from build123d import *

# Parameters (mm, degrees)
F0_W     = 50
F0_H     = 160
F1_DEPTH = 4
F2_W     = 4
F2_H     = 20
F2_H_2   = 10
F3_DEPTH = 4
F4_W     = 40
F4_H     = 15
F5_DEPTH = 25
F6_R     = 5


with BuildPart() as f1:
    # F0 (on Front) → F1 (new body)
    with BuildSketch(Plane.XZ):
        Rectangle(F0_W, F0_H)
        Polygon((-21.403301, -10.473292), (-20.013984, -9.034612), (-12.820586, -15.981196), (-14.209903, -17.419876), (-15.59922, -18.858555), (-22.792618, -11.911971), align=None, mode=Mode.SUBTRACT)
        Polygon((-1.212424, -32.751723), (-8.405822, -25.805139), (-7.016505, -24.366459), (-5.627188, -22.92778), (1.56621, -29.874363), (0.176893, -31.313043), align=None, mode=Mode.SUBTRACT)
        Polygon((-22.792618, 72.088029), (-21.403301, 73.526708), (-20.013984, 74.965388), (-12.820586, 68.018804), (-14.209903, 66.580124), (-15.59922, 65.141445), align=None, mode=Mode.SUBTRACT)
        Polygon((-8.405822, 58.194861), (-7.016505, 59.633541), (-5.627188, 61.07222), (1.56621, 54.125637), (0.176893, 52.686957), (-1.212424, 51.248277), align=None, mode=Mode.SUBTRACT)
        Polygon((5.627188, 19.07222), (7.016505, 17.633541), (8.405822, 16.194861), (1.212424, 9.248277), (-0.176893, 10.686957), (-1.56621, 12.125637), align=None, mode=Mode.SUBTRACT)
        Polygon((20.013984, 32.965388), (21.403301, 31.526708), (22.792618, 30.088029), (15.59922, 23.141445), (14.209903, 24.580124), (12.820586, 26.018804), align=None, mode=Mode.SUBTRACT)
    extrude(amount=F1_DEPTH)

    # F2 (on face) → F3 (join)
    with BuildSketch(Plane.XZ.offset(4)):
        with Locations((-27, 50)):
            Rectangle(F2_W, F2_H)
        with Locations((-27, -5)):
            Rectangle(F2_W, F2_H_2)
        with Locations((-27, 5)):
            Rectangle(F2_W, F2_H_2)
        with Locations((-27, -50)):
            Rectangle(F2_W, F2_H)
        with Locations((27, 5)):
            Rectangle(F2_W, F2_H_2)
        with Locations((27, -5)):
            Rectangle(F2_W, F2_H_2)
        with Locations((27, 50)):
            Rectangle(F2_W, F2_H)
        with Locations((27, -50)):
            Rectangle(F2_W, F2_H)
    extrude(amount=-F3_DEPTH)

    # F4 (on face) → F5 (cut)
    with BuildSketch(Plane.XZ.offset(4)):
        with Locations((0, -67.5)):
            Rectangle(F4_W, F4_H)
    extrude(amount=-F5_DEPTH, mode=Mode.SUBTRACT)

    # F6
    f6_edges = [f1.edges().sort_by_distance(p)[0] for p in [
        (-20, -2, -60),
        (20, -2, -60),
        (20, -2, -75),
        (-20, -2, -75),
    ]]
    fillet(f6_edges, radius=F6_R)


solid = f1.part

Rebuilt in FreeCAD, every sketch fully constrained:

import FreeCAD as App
import Part
import Sketcher
Q = App.Units.Quantity


def edges_at(feature, points):
    """Names of the edges that pass closest to the given points."""
    edges = feature.Shape.Edges
    near = lambda p: min(range(len(edges)), key=lambda i: edges[i].distToShape(Part.Vertex(*p))[0])
    return sorted({f"Edge{near(p) + 1}" for p in points})

doc = App.newDocument("Part")
body = doc.addObject("PartDesign::Body", "Body")

sketch1 = body.newObject("Sketcher::SketchObject", "Sketch")
sketch1.AttachmentSupport = (doc.getObject("XZ_Plane"), [""])
sketch1.MapMode = "FlatFace"
sketch1.addGeometry([
    Part.LineSegment(App.Vector(-25, 80, 0), App.Vector(-25, -80, 0)),
    Part.LineSegment(App.Vector(-25, -80, 0), App.Vector(25, -80, 0)),
    Part.LineSegment(App.Vector(25, -80, 0), App.Vector(25, 80, 0)),
    Part.LineSegment(App.Vector(25, 80, 0), App.Vector(-25, 80, 0)),
    Part.LineSegment(App.Vector(-22.792618, -11.911971, 0), App.Vector(-21.403301, -10.473292, 0)),
    Part.LineSegment(App.Vector(-21.403301, -10.473292, 0), App.Vector(-20.013984, -9.034612, 0)),
    Part.LineSegment(App.Vector(-20.013984, -9.034612, 0), App.Vector(-12.820586, -15.981196, 0)),
    Part.LineSegment(App.Vector(-12.820586, -15.981196, 0), App.Vector(-14.209903, -17.419876, 0)),
    Part.LineSegment(App.Vector(-14.209903, -17.419876, 0), App.Vector(-15.59922, -18.858555, 0)),
    Part.LineSegment(App.Vector(-15.59922, -18.858555, 0), App.Vector(-22.792618, -11.911971, 0)),
    Part.LineSegment(App.Vector(1.56621, -29.874363, 0), App.Vector(-1.212424, -32.751723, 0)),
    Part.LineSegment(App.Vector(-1.212424, -32.751723, 0), App.Vector(-8.405822, -25.805139, 0)),
    Part.LineSegment(App.Vector(-8.405822, -25.805139, 0), App.Vector(-7.016505, -24.366459, 0)),
    Part.LineSegment(App.Vector(-7.016505, -24.366459, 0), App.Vector(-5.627188, -22.92778, 0)),
    Part.LineSegment(App.Vector(-5.627188, -22.92778, 0), App.Vector(1.56621, -29.874363, 0)),
    Part.LineSegment(App.Vector(-1.56621, 12.125637, 0), App.Vector(5.627188, 19.07222, 0)),
    Part.LineSegment(App.Vector(5.627188, 19.07222, 0), App.Vector(7.016505, 17.633541, 0)),
    Part.LineSegment(App.Vector(7.016505, 17.633541, 0), App.Vector(8.405822, 16.194861, 0)),
    Part.LineSegment(App.Vector(8.405822, 16.194861, 0), App.Vector(1.212424, 9.248277, 0)),
    Part.LineSegment(App.Vector(1.212424, 9.248277, 0), App.Vector(-1.56621, 12.125637, 0)),
    Part.LineSegment(App.Vector(-15.59922, 65.141445, 0), App.Vector(-22.792618, 72.088029, 0)),
    Part.LineSegment(App.Vector(-22.792618, 72.088029, 0), App.Vector(-21.403301, 73.526708, 0)),
    Part.LineSegment(App.Vector(-21.403301, 73.526708, 0), App.Vector(-20.013984, 74.965388, 0)),
    Part.LineSegment(App.Vector(-20.013984, 74.965388, 0), App.Vector(-12.820586, 68.018804, 0)),
    Part.LineSegment(App.Vector(-12.820586, 68.018804, 0), App.Vector(-14.209903, 66.580124, 0)),
    Part.LineSegment(App.Vector(-14.209903, 66.580124, 0), App.Vector(-15.59922, 65.141445, 0)),
    Part.LineSegment(App.Vector(-1.212424, 51.248277, 0), App.Vector(-8.405822, 58.194861, 0)),
    Part.LineSegment(App.Vector(-8.405822, 58.194861, 0), App.Vector(-7.016505, 59.633541, 0)),
    Part.LineSegment(App.Vector(-7.016505, 59.633541, 0), App.Vector(-5.627188, 61.07222, 0)),
    Part.LineSegment(App.Vector(-5.627188, 61.07222, 0), App.Vector(1.56621, 54.125637, 0)),
    Part.LineSegment(App.Vector(1.56621, 54.125637, 0), App.Vector(-1.212424, 51.248277, 0)),
    Part.LineSegment(App.Vector(12.820586, 26.018804, 0), App.Vector(20.013984, 32.965388, 0)),
    Part.LineSegment(App.Vector(20.013984, 32.965388, 0), App.Vector(21.403301, 31.526708, 0)),
    Part.LineSegment(App.Vector(21.403301, 31.526708, 0), App.Vector(22.792618, 30.088029, 0)),
    Part.LineSegment(App.Vector(22.792618, 30.088029, 0), App.Vector(15.59922, 23.141445, 0)),
    Part.LineSegment(App.Vector(15.59922, 23.141445, 0), App.Vector(14.209903, 24.580124, 0)),
    Part.LineSegment(App.Vector(14.209903, 24.580124, 0), App.Vector(12.820586, 26.018804, 0)),
], False)
sketch1.addConstraint([
    Sketcher.Constraint("Coincident", 0, 2, 1, 1),
    Sketcher.Constraint("Coincident", 1, 2, 2, 1),
    Sketcher.Constraint("Coincident", 2, 2, 3, 1),
    Sketcher.Constraint("Coincident", 3, 2, 0, 1),
    Sketcher.Constraint("Coincident", 4, 2, 5, 1),
    Sketcher.Constraint("Coincident", 5, 2, 6, 1),
    Sketcher.Constraint("Coincident", 6, 2, 7, 1),
    Sketcher.Constraint("Coincident", 7, 2, 8, 1),
    Sketcher.Constraint("Coincident", 8, 2, 9, 1),
    Sketcher.Constraint("Coincident", 9, 2, 4, 1),
    Sketcher.Constraint("Coincident", 10, 2, 11, 1),
    Sketcher.Constraint("Coincident", 11, 2, 12, 1),
    Sketcher.Constraint("Coincident", 12, 2, 13, 1),
    Sketcher.Constraint("Coincident", 13, 2, 14, 1),
    Sketcher.Constraint("Coincident", 14, 2, 10, 1),
    Sketcher.Constraint("Coincident", 15, 2, 16, 1),
    Sketcher.Constraint("Coincident", 16, 2, 17, 1),
    Sketcher.Constraint("Coincident", 17, 2, 18, 1),
    Sketcher.Constraint("Coincident", 18, 2, 19, 1),
    Sketcher.Constraint("Coincident", 19, 2, 15, 1),
    Sketcher.Constraint("Coincident", 20, 2, 21, 1),
    Sketcher.Constraint("Coincident", 21, 2, 22, 1),
    Sketcher.Constraint("Coincident", 22, 2, 23, 1),
    Sketcher.Constraint("Coincident", 23, 2, 24, 1),
    Sketcher.Constraint("Coincident", 24, 2, 25, 1),
    Sketcher.Constraint("Coincident", 25, 2, 20, 1),
    Sketcher.Constraint("Coincident", 26, 2, 27, 1),
    Sketcher.Constraint("Coincident", 27, 2, 28, 1),
    Sketcher.Constraint("Coincident", 28, 2, 29, 1),
    Sketcher.Constraint("Coincident", 29, 2, 30, 1),
    Sketcher.Constraint("Coincident", 30, 2, 26, 1),
    Sketcher.Constraint("Coincident", 31, 2, 32, 1),
    Sketcher.Constraint("Coincident", 32, 2, 33, 1),
    Sketcher.Constraint("Coincident", 33, 2, 34, 1),
    Sketcher.Constraint("Coincident", 34, 2, 35, 1),
    Sketcher.Constraint("Coincident", 35, 2, 36, 1),
    Sketcher.Constraint("Coincident", 36, 2, 31, 1),
    Sketcher.Constraint("Vertical", 0),
    Sketcher.Constraint("Horizontal", 1),
    Sketcher.Constraint("Vertical", 2),
    Sketcher.Constraint("Horizontal", 3),
    Sketcher.Constraint("Symmetric", 0, 2, 2, 2, -1, 1),
    Sketcher.Constraint("Parallel", 4, 5),
    Sketcher.Constraint("Perpendicular", 5, 6),
    Sketcher.Constraint("Perpendicular", 6, 7),
    Sketcher.Constraint("Parallel", 7, 8),
    Sketcher.Constraint("Perpendicular", 8, 9),
    Sketcher.Constraint("Perpendicular", 9, 10),
    Sketcher.Constraint("Perpendicular", 10, 11),
    Sketcher.Constraint("Perpendicular", 11, 12),
    Sketcher.Constraint("Parallel", 12, 13),
    Sketcher.Constraint("Perpendicular", 13, 14),
    Sketcher.Constraint("Perpendicular", 15, 16),
    Sketcher.Constraint("Parallel", 16, 17),
    Sketcher.Constraint("Perpendicular", 17, 18),
    Sketcher.Constraint("Perpendicular", 18, 19),
    Sketcher.Constraint("Parallel", 14, 20),
    Sketcher.Constraint("Perpendicular", 20, 21),
    Sketcher.Constraint("Parallel", 21, 22),
    Sketcher.Constraint("Perpendicular", 22, 23),
    Sketcher.Constraint("Perpendicular", 23, 24),
    Sketcher.Constraint("Parallel", 24, 25),
    Sketcher.Constraint("Perpendicular", 25, 26),
    Sketcher.Constraint("Perpendicular", 26, 27),
    Sketcher.Constraint("Parallel", 27, 28),
    Sketcher.Constraint("Perpendicular", 28, 29),
    Sketcher.Constraint("Perpendicular", 29, 30),
    Sketcher.Constraint("Perpendicular", 19, 31),
    Sketcher.Constraint("Perpendicular", 31, 32),
    Sketcher.Constraint("Parallel", 32, 33),
    Sketcher.Constraint("Perpendicular", 33, 34),
    Sketcher.Constraint("Perpendicular", 34, 35),
    Sketcher.Constraint("Parallel", 35, 36),
    Sketcher.Constraint("Vertical", 9, 2, 20, 2),
    Sketcher.Constraint("Vertical", 4, 2, 21, 2),
    Sketcher.Constraint("Vertical", 5, 2, 22, 2),
    Sketcher.Constraint("Vertical", 6, 2, 23, 2),
    Sketcher.Constraint("Vertical", 7, 2, 24, 2),
    Sketcher.Constraint("Vertical", 11, 2, 26, 2),
    Sketcher.Constraint("Vertical", 12, 2, 27, 2),
    Sketcher.Constraint("Vertical", 13, 2, 28, 2),
    Sketcher.Constraint("Vertical", 14, 2, 29, 2),
    Sketcher.Constraint("Equal", 4, 5),
    Sketcher.Constraint("Equal", 5, 7),
    Sketcher.Constraint("Equal", 9, 11),
    Sketcher.Constraint("Equal", 8, 12),
    Sketcher.Constraint("Equal", 12, 13),
    Sketcher.Constraint("Equal", 14, 15),
    Sketcher.Constraint("Equal", 13, 16),
    Sketcher.Constraint("Equal", 16, 17),
    Sketcher.Constraint("Equal", 29, 31),
    Sketcher.Constraint("Equal", 28, 32),
    Sketcher.Constraint("Equal", 32, 33),
    Sketcher.Constraint("Equal", 33, 35),
    Sketcher.Constraint("DistanceX", 1, 1, 1, 2, 50.0),
    Sketcher.Constraint("DistanceY", 0, 2, 0, 1, 160.0),
    Sketcher.Constraint("Angle", 4, Q("45.999983 deg")),
    Sketcher.Constraint("Angle", 15, Q("43.999997 deg")),
    Sketcher.Constraint("Distance", 4, 2.0),
    Sketcher.Constraint("Distance", 6, 10.0),
    Sketcher.Constraint("DistanceX", 4, 2, -1, 1, 21.403301),
    Sketcher.Constraint("DistanceX", -1, 1, 32, 2, 21.403301),
    Sketcher.Constraint("DistanceX", 8, 2, 11, 2, 7.193398),
    Sketcher.Constraint("DistanceX", 17, 2, 34, 2, 7.193398),
    Sketcher.Constraint("DistanceY", 5, 2, -1, 1, 9.034612),
    Sketcher.Constraint("DistanceY", 11, 2, -1, 1, 25.805139),
    Sketcher.Constraint("DistanceY", -1, 1, 15, 2, 19.07222),
    Sketcher.Constraint("DistanceY", -1, 1, 20, 2, 72.088029),
    Sketcher.Constraint("DistanceY", -1, 1, 26, 2, 58.194861),
    Sketcher.Constraint("DistanceY", -1, 1, 33, 2, 30.088029),
])
pad1 = body.newObject("PartDesign::Pad", "Pad")
pad1.Profile = sketch1
pad1.Length = 4

sketch2 = body.newObject("Sketcher::SketchObject", "Sketch001")
sketch2.AttachmentSupport = (doc.getObject("XZ_Plane"), [""])
sketch2.MapMode = "FlatFace"
sketch2.AttachmentOffset = App.Placement(App.Vector(0, 0, 4), App.Rotation())
sketch2.addGeometry([
    Part.LineSegment(App.Vector(-29, 60, 0), App.Vector(-29, 40, 0)),
    Part.LineSegment(App.Vector(-29, 40, 0), App.Vector(-25, 40, 0)),
    Part.LineSegment(App.Vector(-25, 40, 0), App.Vector(-25, 60, 0)),
    Part.LineSegment(App.Vector(-25, 60, 0), App.Vector(-29, 60, 0)),
    Part.LineSegment(App.Vector(-29, -10, 0), App.Vector(-25, -10, 0)),
    Part.LineSegment(App.Vector(-25, -10, 0), App.Vector(-25, 10, 0)),
    Part.LineSegment(App.Vector(-25, 10, 0), App.Vector(-29, 10, 0)),
    Part.LineSegment(App.Vector(-29, 10, 0), App.Vector(-29, -10, 0)),
    Part.LineSegment(App.Vector(-29, -40, 0), App.Vector(-29, -60, 0)),
    Part.LineSegment(App.Vector(-29, -60, 0), App.Vector(-25, -60, 0)),
    Part.LineSegment(App.Vector(-25, -60, 0), App.Vector(-25, -40, 0)),
    Part.LineSegment(App.Vector(-25, -40, 0), App.Vector(-29, -40, 0)),
    Part.LineSegment(App.Vector(25, 10, 0), App.Vector(25, -10, 0)),
    Part.LineSegment(App.Vector(25, -10, 0), App.Vector(29, -10, 0)),
    Part.LineSegment(App.Vector(29, -10, 0), App.Vector(29, 10, 0)),
    Part.LineSegment(App.Vector(29, 10, 0), App.Vector(25, 10, 0)),
    Part.LineSegment(App.Vector(25, 60, 0), App.Vector(25, 40, 0)),
    Part.LineSegment(App.Vector(25, 40, 0), App.Vector(29, 40, 0)),
    Part.LineSegment(App.Vector(29, 40, 0), App.Vector(29, 60, 0)),
    Part.LineSegment(App.Vector(29, 60, 0), App.Vector(25, 60, 0)),
    Part.LineSegment(App.Vector(25, -40, 0), App.Vector(25, -60, 0)),
    Part.LineSegment(App.Vector(25, -60, 0), App.Vector(29, -60, 0)),
    Part.LineSegment(App.Vector(29, -60, 0), App.Vector(29, -40, 0)),
    Part.LineSegment(App.Vector(29, -40, 0), App.Vector(25, -40, 0)),
], False)
sketch2.addConstraint([
    Sketcher.Constraint("Coincident", 0, 2, 1, 1),
    Sketcher.Constraint("Coincident", 1, 2, 2, 1),
    Sketcher.Constraint("Coincident", 2, 2, 3, 1),
    Sketcher.Constraint("Coincident", 3, 2, 0, 1),
    Sketcher.Constraint("Coincident", 4, 2, 5, 1),
    Sketcher.Constraint("Coincident", 5, 2, 6, 1),
    Sketcher.Constraint("Coincident", 6, 2, 7, 1),
    Sketcher.Constraint("Coincident", 7, 2, 4, 1),
    Sketcher.Constraint("Coincident", 8, 2, 9, 1),
    Sketcher.Constraint("Coincident", 9, 2, 10, 1),
    Sketcher.Constraint("Coincident", 10, 2, 11, 1),
    Sketcher.Constraint("Coincident", 11, 2, 8, 1),
    Sketcher.Constraint("Coincident", 12, 2, 13, 1),
    Sketcher.Constraint("Coincident", 13, 2, 14, 1),
    Sketcher.Constraint("Coincident", 14, 2, 15, 1),
    Sketcher.Constraint("Coincident", 15, 2, 12, 1),
    Sketcher.Constraint("Coincident", 16, 2, 17, 1),
    Sketcher.Constraint("Coincident", 17, 2, 18, 1),
    Sketcher.Constraint("Coincident", 18, 2, 19, 1),
    Sketcher.Constraint("Coincident", 19, 2, 16, 1),
    Sketcher.Constraint("Coincident", 20, 2, 21, 1),
    Sketcher.Constraint("Coincident", 21, 2, 22, 1),
    Sketcher.Constraint("Coincident", 22, 2, 23, 1),
    Sketcher.Constraint("Coincident", 23, 2, 20, 1),
    Sketcher.Constraint("Vertical", 0),
    Sketcher.Constraint("Horizontal", 1),
    Sketcher.Constraint("Vertical", 2),
    Sketcher.Constraint("Horizontal", 3),
    Sketcher.Constraint("Horizontal", 4),
    Sketcher.Constraint("Vertical", 5),
    Sketcher.Constraint("Horizontal", 6),
    Sketcher.Constraint("Vertical", 7),
    Sketcher.Constraint("Vertical", 8),
    Sketcher.Constraint("Horizontal", 9),
    Sketcher.Constraint("Vertical", 10),
    Sketcher.Constraint("Horizontal", 11),
    Sketcher.Constraint("Vertical", 12),
    Sketcher.Constraint("Horizontal", 13),
    Sketcher.Constraint("Vertical", 14),
    Sketcher.Constraint("Horizontal", 15),
    Sketcher.Constraint("Vertical", 16),
    Sketcher.Constraint("Horizontal", 17),
    Sketcher.Constraint("Vertical", 18),
    Sketcher.Constraint("Horizontal", 19),
    Sketcher.Constraint("Vertical", 20),
    Sketcher.Constraint("Horizontal", 21),
    Sketcher.Constraint("Vertical", 22),
    Sketcher.Constraint("Horizontal", 23),
    Sketcher.Constraint("Symmetric", 5, 2, 12, 2, -1, 1),
    Sketcher.Constraint("Symmetric", 7, 2, 14, 2, -1, 1),
    Sketcher.Constraint("Symmetric", 10, 2, 16, 2, -1, 1),
    Sketcher.Constraint("Symmetric", 8, 2, 18, 2, -1, 1),
    Sketcher.Constraint("Symmetric", 2, 2, 20, 2, -1, 1),
    Sketcher.Constraint("Symmetric", 0, 2, 22, 2, -1, 1),
    Sketcher.Constraint("Symmetric", 1, 2, 16, 2, -2),
    Sketcher.Constraint("Symmetric", 3, 2, 18, 2, -2),
    Sketcher.Constraint("Horizontal", 7, 2, 12, 2),
    Sketcher.Constraint("Vertical", 2, 2, 4, 2),
    Sketcher.Constraint("Vertical", 3, 2, 6, 2),
    Sketcher.Constraint("Equal", 2, 5),
    Sketcher.Constraint("DistanceX", 1, 1, 1, 2, 4.0),
    Sketcher.Constraint("DistanceY", 0, 2, 0, 1, 20.0),
    Sketcher.Constraint("DistanceX", 0, 2, -1, 1, 29.0),
    Sketcher.Constraint("DistanceY", -1, 1, 0, 2, 40.0),
])
pad2 = body.newObject("PartDesign::Pad", "Pad001")
pad2.Profile = sketch2
pad2.Length = 4
pad2.Reversed = True

sketch3 = body.newObject("Sketcher::SketchObject", "Sketch002")
sketch3.AttachmentSupport = (doc.getObject("XZ_Plane"), [""])
sketch3.MapMode = "FlatFace"
sketch3.AttachmentOffset = App.Placement(App.Vector(0, 0, 4), App.Rotation())
sketch3.addGeometry([
    Part.LineSegment(App.Vector(-20, -60, 0), App.Vector(-20, -75, 0)),
    Part.LineSegment(App.Vector(-20, -75, 0), App.Vector(20, -75, 0)),
    Part.LineSegment(App.Vector(20, -75, 0), App.Vector(20, -60, 0)),
    Part.LineSegment(App.Vector(20, -60, 0), App.Vector(-20, -60, 0)),
], False)
sketch3.addConstraint([
    Sketcher.Constraint("Coincident", 0, 2, 1, 1),
    Sketcher.Constraint("Coincident", 1, 2, 2, 1),
    Sketcher.Constraint("Coincident", 2, 2, 3, 1),
    Sketcher.Constraint("Coincident", 3, 2, 0, 1),
    Sketcher.Constraint("Vertical", 0),
    Sketcher.Constraint("Horizontal", 1),
    Sketcher.Constraint("Vertical", 2),
    Sketcher.Constraint("Horizontal", 3),
    Sketcher.Constraint("DistanceX", 1, 1, 1, 2, 40.0),
    Sketcher.Constraint("DistanceY", 0, 2, 0, 1, 15.0),
    Sketcher.Constraint("DistanceX", 0, 2, -1, 1, 20.0),
    Sketcher.Constraint("DistanceY", 0, 2, -1, 1, 75.0),
])
pocket1 = body.newObject("PartDesign::Pocket", "Pocket")
pocket1.Profile = sketch3
pocket1.Length = 25
doc.recompute()

fillet = body.newObject("PartDesign::Fillet", "Fillet")
fillet.Base = (pocket1, edges_at(pocket1, [
    (-20, -2, -60),
    (20, -2, -60),
    (20, -2, -75),
    (-20, -2, -75),
]))
fillet.Radius = 5

doc.recompute()
